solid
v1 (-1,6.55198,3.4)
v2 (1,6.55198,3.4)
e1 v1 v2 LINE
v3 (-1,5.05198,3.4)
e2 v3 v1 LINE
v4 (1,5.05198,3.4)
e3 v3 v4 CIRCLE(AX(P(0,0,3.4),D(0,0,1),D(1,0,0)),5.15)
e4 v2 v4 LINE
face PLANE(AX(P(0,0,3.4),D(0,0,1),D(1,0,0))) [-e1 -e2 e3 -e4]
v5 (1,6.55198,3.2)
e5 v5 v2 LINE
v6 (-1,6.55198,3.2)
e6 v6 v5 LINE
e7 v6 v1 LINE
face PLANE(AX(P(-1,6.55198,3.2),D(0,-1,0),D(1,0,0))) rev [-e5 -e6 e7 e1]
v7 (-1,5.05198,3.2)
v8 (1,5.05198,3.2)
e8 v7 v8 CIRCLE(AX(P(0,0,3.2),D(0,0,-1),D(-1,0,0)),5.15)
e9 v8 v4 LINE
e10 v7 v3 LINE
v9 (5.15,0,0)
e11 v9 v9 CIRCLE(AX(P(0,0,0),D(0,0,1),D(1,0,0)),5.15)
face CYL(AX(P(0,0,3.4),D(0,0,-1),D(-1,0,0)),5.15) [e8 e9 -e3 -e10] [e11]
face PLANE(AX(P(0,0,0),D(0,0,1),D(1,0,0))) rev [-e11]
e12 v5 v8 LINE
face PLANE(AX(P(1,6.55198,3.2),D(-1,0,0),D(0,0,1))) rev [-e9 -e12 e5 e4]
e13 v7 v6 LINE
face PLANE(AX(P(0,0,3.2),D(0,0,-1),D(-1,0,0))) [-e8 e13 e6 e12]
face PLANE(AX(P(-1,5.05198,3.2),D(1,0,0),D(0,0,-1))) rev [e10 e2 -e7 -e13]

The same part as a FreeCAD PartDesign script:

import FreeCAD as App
import Part
import Sketcher
Q = App.Units.Quantity

doc = App.newDocument("Part")
body = doc.addObject("PartDesign::Body", "Body")

# Sketch on XY plane
sketch1 = body.newObject("Sketcher::SketchObject", "Sketch")
sketch1.AttachmentSupport = (doc.getObject("XY_Plane"), [""])
sketch1.MapMode = "FlatFace"
sketch1.addGeometry(Part.Circle(App.Vector(0, 0, 0), App.Vector(0, 0, 1), 5), False)
sketch1.addConstraint([
    Sketcher.Constraint("Coincident", 0, 3, -1, 1),
    Sketcher.Constraint("Diameter", 0, Q("10.3 mm")),
])
pad1 = body.newObject("PartDesign::Pad", "Pad")
pad1.Profile = sketch1
pad1.Length = 3.4

# Sketch on XY plane
sketch2 = body.newObject("Sketcher::SketchObject", "Sketch001")
sketch2.AttachmentSupport = (doc.getObject("XY_Plane"), [""])
sketch2.MapMode = "FlatFace"
sketch2.AttachmentOffset = App.Placement(App.Vector(0, 0, 3.4), App.Rotation())
sketch2.addGeometry([
    Part.LineSegment(App.Vector(-1, 6.6, 0), App.Vector(-1, 5.1, 0)),
    Part.LineSegment(App.Vector(-1, 5.1, 0), App.Vector(1, 5.1, 0)),
    Part.LineSegment(App.Vector(1, 5.1, 0), App.Vector(1, 6.6, 0)),
    Part.LineSegment(App.Vector(1, 6.6, 0), App.Vector(-1, 6.6, 0)),
], False)
sketch2.addConstraint([
    Sketcher.Constraint("Coincident", 0, 2, 1, 1),
    Sketcher.Constraint("Coincident", 1, 2, 2, 1),
    Sketcher.Constraint("Coincident", 2, 2, 3, 1),
    Sketcher.Constraint("Coincident", 3, 2, 0, 1),
    Sketcher.Constraint("Vertical", 0),
    Sketcher.Constraint("Horizontal", 1),
    Sketcher.Constraint("Vertical", 2),
    Sketcher.Constraint("Horizontal", 3),
    Sketcher.Constraint("DistanceX", 1, 1, 1, 2, Q("2 mm")),
    Sketcher.Constraint("DistanceY", 0, 2, 0, 1, Q("1.5 mm")),
    Sketcher.Constraint("DistanceX", 0, 2, -1, 1, Q("1 mm")),
    Sketcher.Constraint("DistanceY", -1, 1, 0, 2, Q("5.05198 mm")),
])
pad2 = body.newObject("PartDesign::Pad", "Pad001")
pad2.Profile = sketch2
pad2.Length = 0.2
pad2.Reversed = True

doc.recompute()
